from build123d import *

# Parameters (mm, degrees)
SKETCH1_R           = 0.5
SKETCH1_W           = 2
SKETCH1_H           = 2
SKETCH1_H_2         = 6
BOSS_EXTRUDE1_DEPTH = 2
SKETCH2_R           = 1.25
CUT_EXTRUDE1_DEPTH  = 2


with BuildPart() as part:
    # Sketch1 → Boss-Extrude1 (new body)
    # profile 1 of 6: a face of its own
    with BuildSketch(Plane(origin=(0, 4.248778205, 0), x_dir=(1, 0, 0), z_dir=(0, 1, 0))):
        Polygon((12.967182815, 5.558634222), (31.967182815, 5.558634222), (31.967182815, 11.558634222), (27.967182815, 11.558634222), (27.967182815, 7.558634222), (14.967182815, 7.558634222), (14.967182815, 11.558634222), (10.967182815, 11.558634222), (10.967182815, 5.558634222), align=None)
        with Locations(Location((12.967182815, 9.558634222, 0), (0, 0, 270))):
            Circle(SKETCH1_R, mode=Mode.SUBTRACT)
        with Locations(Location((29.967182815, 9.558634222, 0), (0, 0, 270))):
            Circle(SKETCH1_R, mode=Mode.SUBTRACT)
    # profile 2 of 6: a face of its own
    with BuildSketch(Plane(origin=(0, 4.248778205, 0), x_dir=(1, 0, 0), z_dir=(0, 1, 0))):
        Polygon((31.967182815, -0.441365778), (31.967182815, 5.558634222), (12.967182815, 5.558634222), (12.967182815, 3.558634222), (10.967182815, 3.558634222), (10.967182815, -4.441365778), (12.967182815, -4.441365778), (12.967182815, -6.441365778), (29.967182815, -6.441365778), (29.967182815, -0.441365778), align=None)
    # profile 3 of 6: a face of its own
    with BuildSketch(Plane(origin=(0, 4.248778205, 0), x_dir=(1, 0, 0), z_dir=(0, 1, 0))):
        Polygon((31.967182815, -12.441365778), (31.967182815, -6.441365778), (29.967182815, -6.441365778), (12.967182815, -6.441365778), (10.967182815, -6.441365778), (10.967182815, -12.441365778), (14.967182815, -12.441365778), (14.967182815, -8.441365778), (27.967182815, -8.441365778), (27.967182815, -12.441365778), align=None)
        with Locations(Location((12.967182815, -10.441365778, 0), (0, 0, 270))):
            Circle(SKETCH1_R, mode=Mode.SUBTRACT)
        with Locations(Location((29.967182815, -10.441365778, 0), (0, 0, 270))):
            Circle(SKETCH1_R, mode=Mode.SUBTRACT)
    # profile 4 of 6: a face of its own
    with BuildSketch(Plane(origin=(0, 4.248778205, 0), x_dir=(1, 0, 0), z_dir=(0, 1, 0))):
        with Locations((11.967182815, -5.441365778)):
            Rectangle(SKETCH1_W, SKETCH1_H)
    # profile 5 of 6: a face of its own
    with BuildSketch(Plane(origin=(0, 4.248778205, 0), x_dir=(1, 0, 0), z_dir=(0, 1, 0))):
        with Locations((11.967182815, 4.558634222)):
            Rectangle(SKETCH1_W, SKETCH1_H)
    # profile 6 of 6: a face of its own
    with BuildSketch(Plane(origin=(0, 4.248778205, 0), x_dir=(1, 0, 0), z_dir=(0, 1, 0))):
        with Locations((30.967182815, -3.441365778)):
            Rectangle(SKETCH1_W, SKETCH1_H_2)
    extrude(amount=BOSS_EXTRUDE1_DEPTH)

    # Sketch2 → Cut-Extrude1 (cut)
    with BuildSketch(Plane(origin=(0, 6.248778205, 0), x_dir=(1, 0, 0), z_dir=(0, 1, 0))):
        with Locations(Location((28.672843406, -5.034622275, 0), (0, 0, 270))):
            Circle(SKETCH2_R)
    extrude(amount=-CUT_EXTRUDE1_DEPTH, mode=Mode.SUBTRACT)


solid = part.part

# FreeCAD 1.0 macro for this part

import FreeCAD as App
import Part
import Sketcher
from FreeCAD import Vector

doc = App.newDocument("Part")
body = doc.addObject("PartDesign::Body", "Body")

# Sketch on XZ plane
sketch1 = body.newObject("Sketcher::SketchObject", "Sketch")
sketch1.AttachmentSupport = (doc.getObject("XZ_Plane"), [""])
sketch1.MapMode = "FlatFace"
sketch1.AttachmentOffset = App.Placement(Vector(0, 0, -4.248778), App.Rotation())
sketch1.addGeometry([
    Part.LineSegment(Vector(31.967183, -11.558634, 0), Vector(27.967183, -11.558634, 0)),  # 0
    Part.LineSegment(Vector(27.967183, -11.558634, 0), Vector(27.967183, -7.558634, 0)),  # 1
    Part.LineSegment(Vector(27.967183, -7.558634, 0), Vector(14.967183, -7.558634, 0)),  # 2
    Part.LineSegment(Vector(14.967183, -7.558634, 0), Vector(14.967183, -11.558634, 0)),  # 3
    Part.LineSegment(Vector(14.967183, -11.558634, 0), Vector(10.967183, -11.558634, 0)),  # 4
    Part.LineSegment(Vector(10.967183, -11.558634, 0), Vector(10.967183, 12.441366, 0)),  # 5
    Part.LineSegment(Vector(10.967183, 12.441366, 0), Vector(14.967183, 12.441366, 0)),  # 6
    Part.LineSegment(Vector(14.967183, 12.441366, 0), Vector(14.967183, 8.441366, 0)),  # 7
    Part.LineSegment(Vector(14.967183, 8.441366, 0), Vector(27.967183, 8.441366, 0)),  # 8
    Part.LineSegment(Vector(27.967183, 8.441366, 0), Vector(27.967183, 12.441366, 0)),  # 9
    Part.LineSegment(Vector(27.967183, 12.441366, 0), Vector(31.967183, 12.441366, 0)),  # 10
    Part.LineSegment(Vector(31.967183, 12.441366, 0), Vector(31.967183, -11.558634, 0)),  # 11
    Part.Circle(Vector(12.967183, -9.558634, 0), Vector(0, 0, 1), 0.5),  # 12
    Part.Circle(Vector(29.967183, -9.558634, 0), Vector(0, 0, 1), 0.5),  # 13
    Part.Circle(Vector(12.967183, 10.441366, 0), Vector(0, 0, 1), 0.5),  # 14
    Part.Circle(Vector(29.967183, 10.441366, 0), Vector(0, 0, 1), 0.5),  # 15
], False)
sketch1.addConstraint([
    Sketcher.Constraint("Coincident", 0, 2, 1, 1),
    Sketcher.Constraint("Coincident", 1, 2, 2, 1),
    Sketcher.Constraint("Coincident", 2, 2, 3, 1),
    Sketcher.Constraint("Coincident", 3, 2, 4, 1),
    Sketcher.Constraint("Coincident", 4, 2, 5, 1),
    Sketcher.Constraint("Coincident", 5, 2, 6, 1),
    Sketcher.Constraint("Coincident", 6, 2, 7, 1),
    Sketcher.Constraint("Coincident", 7, 2, 8, 1),
    Sketcher.Constraint("Coincident", 8, 2, 9, 1),
    Sketcher.Constraint("Coincident", 9, 2, 10, 1),
    Sketcher.Constraint("Coincident", 10, 2, 11, 1),
    Sketcher.Constraint("Coincident", 11, 2, 0, 1),
    Sketcher.Constraint("Horizontal", 0),
    Sketcher.Constraint("Vertical", 1),
    Sketcher.Constraint("Horizontal", 2),
    Sketcher.Constraint("Vertical", 3),
    Sketcher.Constraint("Horizontal", 4),
    Sketcher.Constraint("Vertical", 5),
    Sketcher.Constraint("Horizontal", 6),
    Sketcher.Constraint("Vertical", 7),
    Sketcher.Constraint("Horizontal", 8),
    Sketcher.Constraint("Vertical", 9),
    Sketcher.Constraint("Horizontal", 10),
    Sketcher.Constraint("Vertical", 11),
    Sketcher.Constraint("Equal", 12, 13),
    Sketcher.Constraint("Equal", 13, 14),
    Sketcher.Constraint("Equal", 14, 15),
    Sketcher.Constraint("Horizontal", 12, 3, 13, 3),
    Sketcher.Constraint("Horizontal", 14, 3, 15, 3),
    Sketcher.Constraint("Horizontal", 0, 2, 3, 2),
    Sketcher.Constraint("Horizontal", 6, 2, 9, 2),
    Sketcher.Constraint("Vertical", 12, 3, 14, 3),
    Sketcher.Constraint("Vertical", 13, 3, 15, 3),
    Sketcher.Constraint("Vertical", 3, 2, 6, 2),
    Sketcher.Constraint("Vertical", 1, 2, 8, 2),
    Sketcher.Constraint("Equal", 0, 4),
    Sketcher.Constraint("Equal", 10, 1),
    Sketcher.Constraint("Equal", 3, 7),
    Sketcher.Constraint("Diameter", 12, 1.0),
    Sketcher.Constraint("DistanceX", 0, 2, 0, 1, 4.0),
    Sketcher.Constraint("DistanceX", 2, 2, 2, 1, 13.0),
    Sketcher.Constraint("DistanceY", 5, 1, 5, 2, 24.0),
    Sketcher.Constraint("DistanceX", 12, 3, 13, 3, 17.0),
    Sketcher.Constraint("DistanceY", 12, 3, 14, 3, 20.0),
    Sketcher.Constraint("DistanceX", 0, 2, 13, 3, 2.0),
    Sketcher.Constraint("DistanceY", 0, 2, 13, 3, 2.0),
    Sketcher.Constraint("DistanceX", -1, 1, 12, 3, 12.967183),
    Sketcher.Constraint("DistanceY", 12, 3, -1, 1, 9.558634),
])
pad1 = body.newObject("PartDesign::Pad", "Pad")
pad1.Profile = sketch1
pad1.Length = 2
pad1.Reversed = True

# Sketch on XZ plane
sketch2 = body.newObject("Sketcher::SketchObject", "Sketch001")
sketch2.AttachmentSupport = (doc.getObject("XZ_Plane"), [""])
sketch2.MapMode = "FlatFace"
sketch2.AttachmentOffset = App.Placement(Vector(0, 0, -6.248778), App.Rotation())
sketch2.addGeometry(Part.Circle(Vector(28.672843, 5.034622, 0), Vector(0, 0, 1), 1.25), False)
sketch2.addConstraint([
    Sketcher.Constraint("Diameter", 0, 2.5),
    Sketcher.Constraint("DistanceX", -1, 1, 0, 3, 28.672843),
    Sketcher.Constraint("DistanceY", -1, 1, 0, 3, 5.034622),
])
pocket1 = body.newObject("PartDesign::Pocket", "Pocket")
pocket1.Profile = sketch2
pocket1.Length = 2
pocket1.Reversed = True

doc.recompute()
